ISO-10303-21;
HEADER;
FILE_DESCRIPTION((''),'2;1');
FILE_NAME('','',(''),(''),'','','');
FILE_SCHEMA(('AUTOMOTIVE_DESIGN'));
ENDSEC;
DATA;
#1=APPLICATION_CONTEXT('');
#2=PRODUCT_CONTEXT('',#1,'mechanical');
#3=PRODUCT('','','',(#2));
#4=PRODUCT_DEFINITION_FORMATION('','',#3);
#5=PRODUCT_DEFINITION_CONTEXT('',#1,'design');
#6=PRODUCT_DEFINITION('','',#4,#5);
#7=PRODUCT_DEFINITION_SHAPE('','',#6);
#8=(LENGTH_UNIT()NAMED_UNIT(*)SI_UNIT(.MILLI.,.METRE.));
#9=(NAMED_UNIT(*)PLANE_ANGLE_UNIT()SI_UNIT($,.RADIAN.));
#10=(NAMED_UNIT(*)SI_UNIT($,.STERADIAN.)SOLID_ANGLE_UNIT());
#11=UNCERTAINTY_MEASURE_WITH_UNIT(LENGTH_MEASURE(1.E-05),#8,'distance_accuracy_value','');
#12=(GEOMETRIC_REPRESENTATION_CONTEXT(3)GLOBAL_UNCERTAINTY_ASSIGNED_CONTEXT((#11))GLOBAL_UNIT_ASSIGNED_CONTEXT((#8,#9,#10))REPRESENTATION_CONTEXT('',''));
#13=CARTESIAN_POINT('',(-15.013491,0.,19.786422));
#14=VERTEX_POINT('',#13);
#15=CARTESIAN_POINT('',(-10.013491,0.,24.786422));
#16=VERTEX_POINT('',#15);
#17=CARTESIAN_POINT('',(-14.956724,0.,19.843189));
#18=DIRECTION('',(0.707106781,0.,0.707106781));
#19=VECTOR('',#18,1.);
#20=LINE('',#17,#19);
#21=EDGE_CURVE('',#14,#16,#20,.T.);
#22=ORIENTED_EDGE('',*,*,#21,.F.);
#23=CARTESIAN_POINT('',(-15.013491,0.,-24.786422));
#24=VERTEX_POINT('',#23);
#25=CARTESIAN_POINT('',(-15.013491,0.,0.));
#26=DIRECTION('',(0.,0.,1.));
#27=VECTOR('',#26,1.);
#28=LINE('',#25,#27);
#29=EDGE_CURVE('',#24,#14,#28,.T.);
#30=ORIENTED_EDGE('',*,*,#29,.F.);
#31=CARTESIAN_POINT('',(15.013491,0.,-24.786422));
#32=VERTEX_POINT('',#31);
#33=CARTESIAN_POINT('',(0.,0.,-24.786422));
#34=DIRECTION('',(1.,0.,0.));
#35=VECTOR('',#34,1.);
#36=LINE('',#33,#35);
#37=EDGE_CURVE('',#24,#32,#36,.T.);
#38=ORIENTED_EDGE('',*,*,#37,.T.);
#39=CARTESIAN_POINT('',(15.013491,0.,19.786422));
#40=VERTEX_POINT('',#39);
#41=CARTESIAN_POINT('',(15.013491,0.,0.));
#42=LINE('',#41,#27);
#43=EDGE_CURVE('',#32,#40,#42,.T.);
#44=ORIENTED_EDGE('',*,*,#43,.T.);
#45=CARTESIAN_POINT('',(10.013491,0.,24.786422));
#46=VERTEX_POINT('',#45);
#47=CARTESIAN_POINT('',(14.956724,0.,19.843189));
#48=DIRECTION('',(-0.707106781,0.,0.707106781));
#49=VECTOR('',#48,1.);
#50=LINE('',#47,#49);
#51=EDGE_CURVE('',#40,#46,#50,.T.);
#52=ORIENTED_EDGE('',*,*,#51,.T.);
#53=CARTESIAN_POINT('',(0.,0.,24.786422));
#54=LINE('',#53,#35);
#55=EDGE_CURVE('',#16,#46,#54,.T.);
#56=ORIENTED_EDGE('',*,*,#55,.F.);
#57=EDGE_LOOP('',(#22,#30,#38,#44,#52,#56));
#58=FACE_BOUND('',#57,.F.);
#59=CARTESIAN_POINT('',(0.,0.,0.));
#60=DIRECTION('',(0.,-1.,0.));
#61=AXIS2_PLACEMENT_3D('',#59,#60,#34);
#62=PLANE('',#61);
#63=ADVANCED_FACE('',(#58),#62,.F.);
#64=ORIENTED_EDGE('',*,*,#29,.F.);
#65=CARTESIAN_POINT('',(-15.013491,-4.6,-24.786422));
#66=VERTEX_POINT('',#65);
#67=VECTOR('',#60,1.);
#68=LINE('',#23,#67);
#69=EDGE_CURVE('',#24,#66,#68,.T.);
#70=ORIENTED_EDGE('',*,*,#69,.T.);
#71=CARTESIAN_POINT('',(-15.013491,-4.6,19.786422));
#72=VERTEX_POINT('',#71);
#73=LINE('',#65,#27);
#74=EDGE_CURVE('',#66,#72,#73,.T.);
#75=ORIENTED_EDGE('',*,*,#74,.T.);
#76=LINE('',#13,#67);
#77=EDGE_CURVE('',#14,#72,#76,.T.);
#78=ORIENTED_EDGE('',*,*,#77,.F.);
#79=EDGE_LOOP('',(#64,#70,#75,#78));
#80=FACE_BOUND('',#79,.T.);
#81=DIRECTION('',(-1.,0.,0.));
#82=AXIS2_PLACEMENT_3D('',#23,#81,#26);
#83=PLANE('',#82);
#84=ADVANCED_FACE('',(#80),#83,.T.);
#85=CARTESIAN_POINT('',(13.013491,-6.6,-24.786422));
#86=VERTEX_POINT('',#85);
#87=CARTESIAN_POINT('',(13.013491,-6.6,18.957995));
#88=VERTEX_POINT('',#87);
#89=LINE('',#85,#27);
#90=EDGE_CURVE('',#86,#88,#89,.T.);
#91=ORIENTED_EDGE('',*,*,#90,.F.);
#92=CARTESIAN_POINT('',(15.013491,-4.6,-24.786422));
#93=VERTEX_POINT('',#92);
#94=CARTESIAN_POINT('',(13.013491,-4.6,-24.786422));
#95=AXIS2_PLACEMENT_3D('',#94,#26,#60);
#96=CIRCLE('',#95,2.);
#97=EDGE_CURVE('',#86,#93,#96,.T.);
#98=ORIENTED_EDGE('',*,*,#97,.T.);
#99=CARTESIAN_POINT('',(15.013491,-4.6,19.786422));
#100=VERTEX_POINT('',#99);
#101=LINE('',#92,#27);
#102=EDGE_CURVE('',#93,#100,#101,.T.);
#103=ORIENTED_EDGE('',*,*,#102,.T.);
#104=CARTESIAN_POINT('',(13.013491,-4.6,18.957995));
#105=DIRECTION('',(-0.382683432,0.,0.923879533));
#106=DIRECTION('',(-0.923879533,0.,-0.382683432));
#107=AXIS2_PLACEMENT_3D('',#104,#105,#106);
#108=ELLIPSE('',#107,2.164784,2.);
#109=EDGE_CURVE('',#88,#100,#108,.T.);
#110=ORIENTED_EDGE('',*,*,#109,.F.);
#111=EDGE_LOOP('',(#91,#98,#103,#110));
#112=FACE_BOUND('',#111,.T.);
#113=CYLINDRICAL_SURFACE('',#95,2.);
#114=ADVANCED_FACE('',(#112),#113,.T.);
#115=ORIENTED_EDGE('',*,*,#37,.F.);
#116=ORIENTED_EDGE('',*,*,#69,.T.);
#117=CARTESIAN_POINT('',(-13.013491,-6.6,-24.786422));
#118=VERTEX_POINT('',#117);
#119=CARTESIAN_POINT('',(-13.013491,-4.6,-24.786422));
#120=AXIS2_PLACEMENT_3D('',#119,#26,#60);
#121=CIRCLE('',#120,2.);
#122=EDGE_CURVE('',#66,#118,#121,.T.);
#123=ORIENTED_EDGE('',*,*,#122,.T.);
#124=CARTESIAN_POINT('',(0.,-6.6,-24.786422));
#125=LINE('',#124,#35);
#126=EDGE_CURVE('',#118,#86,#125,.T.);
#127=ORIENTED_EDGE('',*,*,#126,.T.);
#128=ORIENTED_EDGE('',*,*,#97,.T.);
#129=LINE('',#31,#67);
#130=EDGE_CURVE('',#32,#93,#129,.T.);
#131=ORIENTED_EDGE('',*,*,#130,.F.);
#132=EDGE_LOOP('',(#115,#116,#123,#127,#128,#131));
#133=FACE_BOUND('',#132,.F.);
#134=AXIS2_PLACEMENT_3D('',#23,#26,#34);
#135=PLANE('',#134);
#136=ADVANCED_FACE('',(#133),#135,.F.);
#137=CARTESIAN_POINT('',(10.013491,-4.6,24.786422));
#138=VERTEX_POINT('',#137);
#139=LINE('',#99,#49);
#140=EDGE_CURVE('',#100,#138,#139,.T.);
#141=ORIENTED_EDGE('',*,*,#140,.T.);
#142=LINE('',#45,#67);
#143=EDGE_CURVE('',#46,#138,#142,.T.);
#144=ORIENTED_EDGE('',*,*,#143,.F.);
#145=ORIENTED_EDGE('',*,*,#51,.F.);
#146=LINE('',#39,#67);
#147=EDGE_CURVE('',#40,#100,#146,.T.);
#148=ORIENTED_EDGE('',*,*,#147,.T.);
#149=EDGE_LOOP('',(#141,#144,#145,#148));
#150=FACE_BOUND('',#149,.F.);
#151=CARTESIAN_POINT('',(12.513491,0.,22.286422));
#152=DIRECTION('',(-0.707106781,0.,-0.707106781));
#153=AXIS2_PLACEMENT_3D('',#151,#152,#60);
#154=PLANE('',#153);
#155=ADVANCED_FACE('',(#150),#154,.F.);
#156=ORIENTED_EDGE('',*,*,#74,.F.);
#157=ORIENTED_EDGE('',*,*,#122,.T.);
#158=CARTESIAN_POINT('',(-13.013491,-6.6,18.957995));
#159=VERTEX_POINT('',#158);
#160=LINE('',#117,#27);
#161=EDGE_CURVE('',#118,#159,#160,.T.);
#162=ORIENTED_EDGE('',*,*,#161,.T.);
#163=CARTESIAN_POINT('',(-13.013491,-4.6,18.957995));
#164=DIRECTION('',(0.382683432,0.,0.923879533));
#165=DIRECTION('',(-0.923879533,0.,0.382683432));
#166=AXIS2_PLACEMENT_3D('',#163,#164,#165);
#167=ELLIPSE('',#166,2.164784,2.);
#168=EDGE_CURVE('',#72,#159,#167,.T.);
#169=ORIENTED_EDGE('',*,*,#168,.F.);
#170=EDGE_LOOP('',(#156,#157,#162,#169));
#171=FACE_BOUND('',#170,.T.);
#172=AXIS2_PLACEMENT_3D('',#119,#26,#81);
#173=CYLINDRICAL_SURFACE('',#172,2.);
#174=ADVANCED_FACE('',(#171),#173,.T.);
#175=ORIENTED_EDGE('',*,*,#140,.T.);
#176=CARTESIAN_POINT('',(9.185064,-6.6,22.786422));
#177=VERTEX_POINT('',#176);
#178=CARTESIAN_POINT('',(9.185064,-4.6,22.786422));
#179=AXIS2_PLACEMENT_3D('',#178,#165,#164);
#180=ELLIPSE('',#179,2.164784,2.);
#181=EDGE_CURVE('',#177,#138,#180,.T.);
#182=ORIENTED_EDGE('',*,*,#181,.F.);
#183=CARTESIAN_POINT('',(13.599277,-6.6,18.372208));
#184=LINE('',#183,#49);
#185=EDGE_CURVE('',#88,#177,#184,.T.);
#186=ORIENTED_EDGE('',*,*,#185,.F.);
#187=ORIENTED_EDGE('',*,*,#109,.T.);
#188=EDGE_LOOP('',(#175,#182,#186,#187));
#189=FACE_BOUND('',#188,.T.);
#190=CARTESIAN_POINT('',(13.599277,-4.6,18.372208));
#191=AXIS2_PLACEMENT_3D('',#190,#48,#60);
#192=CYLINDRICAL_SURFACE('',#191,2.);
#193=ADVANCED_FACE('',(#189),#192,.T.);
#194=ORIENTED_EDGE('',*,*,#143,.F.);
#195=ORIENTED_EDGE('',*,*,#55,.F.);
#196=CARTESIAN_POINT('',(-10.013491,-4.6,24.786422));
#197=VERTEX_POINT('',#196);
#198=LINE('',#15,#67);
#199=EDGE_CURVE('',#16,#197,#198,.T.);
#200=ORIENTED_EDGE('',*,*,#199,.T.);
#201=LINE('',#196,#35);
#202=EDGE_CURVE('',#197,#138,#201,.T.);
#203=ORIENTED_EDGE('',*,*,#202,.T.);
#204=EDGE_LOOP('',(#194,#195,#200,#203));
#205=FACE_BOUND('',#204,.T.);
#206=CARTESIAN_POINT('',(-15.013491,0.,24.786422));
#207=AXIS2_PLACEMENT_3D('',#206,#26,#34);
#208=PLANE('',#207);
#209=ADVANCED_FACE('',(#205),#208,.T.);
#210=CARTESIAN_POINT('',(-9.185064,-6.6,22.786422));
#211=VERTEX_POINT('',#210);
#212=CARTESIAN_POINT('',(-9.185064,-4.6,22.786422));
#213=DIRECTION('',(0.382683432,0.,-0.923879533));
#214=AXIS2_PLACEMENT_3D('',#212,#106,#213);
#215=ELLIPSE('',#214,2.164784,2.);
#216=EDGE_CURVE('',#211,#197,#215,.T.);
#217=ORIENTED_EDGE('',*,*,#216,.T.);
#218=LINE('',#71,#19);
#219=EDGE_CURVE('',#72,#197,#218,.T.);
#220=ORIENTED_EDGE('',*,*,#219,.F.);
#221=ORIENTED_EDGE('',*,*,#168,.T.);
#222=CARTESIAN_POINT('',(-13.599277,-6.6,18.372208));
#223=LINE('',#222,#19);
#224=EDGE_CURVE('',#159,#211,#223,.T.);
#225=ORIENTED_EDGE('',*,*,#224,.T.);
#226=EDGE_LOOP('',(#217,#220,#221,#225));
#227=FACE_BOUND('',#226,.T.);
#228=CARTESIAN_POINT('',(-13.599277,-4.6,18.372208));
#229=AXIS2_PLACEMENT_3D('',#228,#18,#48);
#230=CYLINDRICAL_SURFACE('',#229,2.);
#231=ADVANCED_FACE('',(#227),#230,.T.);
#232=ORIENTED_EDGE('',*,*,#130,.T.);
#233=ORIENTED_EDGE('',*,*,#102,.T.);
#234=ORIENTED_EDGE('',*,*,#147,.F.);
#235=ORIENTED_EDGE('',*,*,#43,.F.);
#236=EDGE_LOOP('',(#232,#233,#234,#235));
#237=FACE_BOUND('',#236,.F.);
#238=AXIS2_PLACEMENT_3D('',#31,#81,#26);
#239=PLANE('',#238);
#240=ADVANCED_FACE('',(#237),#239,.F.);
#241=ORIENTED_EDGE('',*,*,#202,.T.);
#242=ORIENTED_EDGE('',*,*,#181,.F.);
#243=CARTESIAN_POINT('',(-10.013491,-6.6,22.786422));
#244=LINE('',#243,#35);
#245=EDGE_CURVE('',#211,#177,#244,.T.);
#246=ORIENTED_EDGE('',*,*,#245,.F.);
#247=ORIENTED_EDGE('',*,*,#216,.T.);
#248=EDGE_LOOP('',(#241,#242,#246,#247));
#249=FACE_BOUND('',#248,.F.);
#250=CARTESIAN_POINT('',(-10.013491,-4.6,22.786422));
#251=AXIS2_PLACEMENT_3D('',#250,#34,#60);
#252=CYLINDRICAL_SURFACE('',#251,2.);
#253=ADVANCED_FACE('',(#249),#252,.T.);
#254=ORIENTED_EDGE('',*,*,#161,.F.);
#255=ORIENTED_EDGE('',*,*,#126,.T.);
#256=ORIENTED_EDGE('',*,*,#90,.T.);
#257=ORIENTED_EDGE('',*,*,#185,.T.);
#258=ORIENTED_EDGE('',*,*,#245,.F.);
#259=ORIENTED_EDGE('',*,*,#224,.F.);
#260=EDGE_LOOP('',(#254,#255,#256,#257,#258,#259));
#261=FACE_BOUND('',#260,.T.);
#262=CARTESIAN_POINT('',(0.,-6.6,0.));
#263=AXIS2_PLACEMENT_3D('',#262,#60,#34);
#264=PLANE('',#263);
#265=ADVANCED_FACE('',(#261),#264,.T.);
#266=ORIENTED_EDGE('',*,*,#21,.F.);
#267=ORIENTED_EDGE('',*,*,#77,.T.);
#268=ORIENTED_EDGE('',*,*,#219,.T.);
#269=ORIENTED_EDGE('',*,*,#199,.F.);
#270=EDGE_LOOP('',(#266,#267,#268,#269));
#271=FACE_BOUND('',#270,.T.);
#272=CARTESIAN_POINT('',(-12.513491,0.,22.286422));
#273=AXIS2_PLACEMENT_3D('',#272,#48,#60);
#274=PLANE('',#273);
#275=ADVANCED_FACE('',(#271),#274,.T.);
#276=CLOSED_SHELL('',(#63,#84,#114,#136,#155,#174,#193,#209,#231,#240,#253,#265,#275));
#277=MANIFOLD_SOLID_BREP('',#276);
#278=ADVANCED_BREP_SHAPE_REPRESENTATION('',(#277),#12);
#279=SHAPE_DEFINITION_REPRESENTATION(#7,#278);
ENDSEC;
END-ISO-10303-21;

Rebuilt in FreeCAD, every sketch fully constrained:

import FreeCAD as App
import Part
import Sketcher
Q = App.Units.Quantity


def edges_at(feature, points):
    """Names of the edges that pass closest to the given points."""
    edges = feature.Shape.Edges
    near = lambda p: min(range(len(edges)), key=lambda i: edges[i].distToShape(Part.Vertex(*p))[0])
    return sorted({f"Edge{near(p) + 1}" for p in points})

doc = App.newDocument("Part")
body = doc.addObject("PartDesign::Body", "Body")

sketch1 = body.newObject("Sketcher::SketchObject", "Sketch")
sketch1.AttachmentSupport = (doc.getObject("XZ_Plane"), [""])
sketch1.MapMode = "FlatFace"
sketch1.addGeometry([
    Part.LineSegment(App.Vector(-15, 25, 0), App.Vector(-15, -25, 0)),
    Part.LineSegment(App.Vector(-15, -25, 0), App.Vector(15, -25, 0)),
    Part.LineSegment(App.Vector(15, -25, 0), App.Vector(15, 25, 0)),
    Part.LineSegment(App.Vector(15, 25, 0), App.Vector(-15, 25, 0)),
], False)
sketch1.addConstraint([
    Sketcher.Constraint("Coincident", 0, 2, 1, 1),
    Sketcher.Constraint("Coincident", 1, 2, 2, 1),
    Sketcher.Constraint("Coincident", 2, 2, 3, 1),
    Sketcher.Constraint("Coincident", 3, 2, 0, 1),
    Sketcher.Constraint("Vertical", 0),
    Sketcher.Constraint("Horizontal", 1),
    Sketcher.Constraint("Vertical", 2),
    Sketcher.Constraint("Horizontal", 3),
    Sketcher.Constraint("Symmetric", 0, 2, 2, 2, -1, 1),
    Sketcher.Constraint("DistanceX", 1, 1, 1, 2, Q("30.026982 mm")),
    Sketcher.Constraint("DistanceY", 0, 2, 0, 1, Q("49.572844 mm")),
])
pad1 = body.newObject("PartDesign::Pad", "Pad")
pad1.Profile = sketch1
pad1.Length = 6.6
doc.recompute()

chamfer = body.newObject("PartDesign::Chamfer", "Chamfer")
chamfer.Base = (pad1, edges_at(pad1, [(-15.013, -3.3, 24.786), (15.013, -3.3, 24.786)]))
chamfer.Size = 5
doc.recompute()

fillet = body.newObject("PartDesign::Fillet", "Fillet")
fillet.Base = (chamfer, edges_at(chamfer, [
    (12.513, -6.6, 22.286),
    (-15.013, -6.6, -2.5),
    (0, -6.6, 24.786),
    (15.013, -6.6, -2.5),
    (-12.513, -6.6, 22.286),
]))
fillet.Radius = 2

doc.recompute()
